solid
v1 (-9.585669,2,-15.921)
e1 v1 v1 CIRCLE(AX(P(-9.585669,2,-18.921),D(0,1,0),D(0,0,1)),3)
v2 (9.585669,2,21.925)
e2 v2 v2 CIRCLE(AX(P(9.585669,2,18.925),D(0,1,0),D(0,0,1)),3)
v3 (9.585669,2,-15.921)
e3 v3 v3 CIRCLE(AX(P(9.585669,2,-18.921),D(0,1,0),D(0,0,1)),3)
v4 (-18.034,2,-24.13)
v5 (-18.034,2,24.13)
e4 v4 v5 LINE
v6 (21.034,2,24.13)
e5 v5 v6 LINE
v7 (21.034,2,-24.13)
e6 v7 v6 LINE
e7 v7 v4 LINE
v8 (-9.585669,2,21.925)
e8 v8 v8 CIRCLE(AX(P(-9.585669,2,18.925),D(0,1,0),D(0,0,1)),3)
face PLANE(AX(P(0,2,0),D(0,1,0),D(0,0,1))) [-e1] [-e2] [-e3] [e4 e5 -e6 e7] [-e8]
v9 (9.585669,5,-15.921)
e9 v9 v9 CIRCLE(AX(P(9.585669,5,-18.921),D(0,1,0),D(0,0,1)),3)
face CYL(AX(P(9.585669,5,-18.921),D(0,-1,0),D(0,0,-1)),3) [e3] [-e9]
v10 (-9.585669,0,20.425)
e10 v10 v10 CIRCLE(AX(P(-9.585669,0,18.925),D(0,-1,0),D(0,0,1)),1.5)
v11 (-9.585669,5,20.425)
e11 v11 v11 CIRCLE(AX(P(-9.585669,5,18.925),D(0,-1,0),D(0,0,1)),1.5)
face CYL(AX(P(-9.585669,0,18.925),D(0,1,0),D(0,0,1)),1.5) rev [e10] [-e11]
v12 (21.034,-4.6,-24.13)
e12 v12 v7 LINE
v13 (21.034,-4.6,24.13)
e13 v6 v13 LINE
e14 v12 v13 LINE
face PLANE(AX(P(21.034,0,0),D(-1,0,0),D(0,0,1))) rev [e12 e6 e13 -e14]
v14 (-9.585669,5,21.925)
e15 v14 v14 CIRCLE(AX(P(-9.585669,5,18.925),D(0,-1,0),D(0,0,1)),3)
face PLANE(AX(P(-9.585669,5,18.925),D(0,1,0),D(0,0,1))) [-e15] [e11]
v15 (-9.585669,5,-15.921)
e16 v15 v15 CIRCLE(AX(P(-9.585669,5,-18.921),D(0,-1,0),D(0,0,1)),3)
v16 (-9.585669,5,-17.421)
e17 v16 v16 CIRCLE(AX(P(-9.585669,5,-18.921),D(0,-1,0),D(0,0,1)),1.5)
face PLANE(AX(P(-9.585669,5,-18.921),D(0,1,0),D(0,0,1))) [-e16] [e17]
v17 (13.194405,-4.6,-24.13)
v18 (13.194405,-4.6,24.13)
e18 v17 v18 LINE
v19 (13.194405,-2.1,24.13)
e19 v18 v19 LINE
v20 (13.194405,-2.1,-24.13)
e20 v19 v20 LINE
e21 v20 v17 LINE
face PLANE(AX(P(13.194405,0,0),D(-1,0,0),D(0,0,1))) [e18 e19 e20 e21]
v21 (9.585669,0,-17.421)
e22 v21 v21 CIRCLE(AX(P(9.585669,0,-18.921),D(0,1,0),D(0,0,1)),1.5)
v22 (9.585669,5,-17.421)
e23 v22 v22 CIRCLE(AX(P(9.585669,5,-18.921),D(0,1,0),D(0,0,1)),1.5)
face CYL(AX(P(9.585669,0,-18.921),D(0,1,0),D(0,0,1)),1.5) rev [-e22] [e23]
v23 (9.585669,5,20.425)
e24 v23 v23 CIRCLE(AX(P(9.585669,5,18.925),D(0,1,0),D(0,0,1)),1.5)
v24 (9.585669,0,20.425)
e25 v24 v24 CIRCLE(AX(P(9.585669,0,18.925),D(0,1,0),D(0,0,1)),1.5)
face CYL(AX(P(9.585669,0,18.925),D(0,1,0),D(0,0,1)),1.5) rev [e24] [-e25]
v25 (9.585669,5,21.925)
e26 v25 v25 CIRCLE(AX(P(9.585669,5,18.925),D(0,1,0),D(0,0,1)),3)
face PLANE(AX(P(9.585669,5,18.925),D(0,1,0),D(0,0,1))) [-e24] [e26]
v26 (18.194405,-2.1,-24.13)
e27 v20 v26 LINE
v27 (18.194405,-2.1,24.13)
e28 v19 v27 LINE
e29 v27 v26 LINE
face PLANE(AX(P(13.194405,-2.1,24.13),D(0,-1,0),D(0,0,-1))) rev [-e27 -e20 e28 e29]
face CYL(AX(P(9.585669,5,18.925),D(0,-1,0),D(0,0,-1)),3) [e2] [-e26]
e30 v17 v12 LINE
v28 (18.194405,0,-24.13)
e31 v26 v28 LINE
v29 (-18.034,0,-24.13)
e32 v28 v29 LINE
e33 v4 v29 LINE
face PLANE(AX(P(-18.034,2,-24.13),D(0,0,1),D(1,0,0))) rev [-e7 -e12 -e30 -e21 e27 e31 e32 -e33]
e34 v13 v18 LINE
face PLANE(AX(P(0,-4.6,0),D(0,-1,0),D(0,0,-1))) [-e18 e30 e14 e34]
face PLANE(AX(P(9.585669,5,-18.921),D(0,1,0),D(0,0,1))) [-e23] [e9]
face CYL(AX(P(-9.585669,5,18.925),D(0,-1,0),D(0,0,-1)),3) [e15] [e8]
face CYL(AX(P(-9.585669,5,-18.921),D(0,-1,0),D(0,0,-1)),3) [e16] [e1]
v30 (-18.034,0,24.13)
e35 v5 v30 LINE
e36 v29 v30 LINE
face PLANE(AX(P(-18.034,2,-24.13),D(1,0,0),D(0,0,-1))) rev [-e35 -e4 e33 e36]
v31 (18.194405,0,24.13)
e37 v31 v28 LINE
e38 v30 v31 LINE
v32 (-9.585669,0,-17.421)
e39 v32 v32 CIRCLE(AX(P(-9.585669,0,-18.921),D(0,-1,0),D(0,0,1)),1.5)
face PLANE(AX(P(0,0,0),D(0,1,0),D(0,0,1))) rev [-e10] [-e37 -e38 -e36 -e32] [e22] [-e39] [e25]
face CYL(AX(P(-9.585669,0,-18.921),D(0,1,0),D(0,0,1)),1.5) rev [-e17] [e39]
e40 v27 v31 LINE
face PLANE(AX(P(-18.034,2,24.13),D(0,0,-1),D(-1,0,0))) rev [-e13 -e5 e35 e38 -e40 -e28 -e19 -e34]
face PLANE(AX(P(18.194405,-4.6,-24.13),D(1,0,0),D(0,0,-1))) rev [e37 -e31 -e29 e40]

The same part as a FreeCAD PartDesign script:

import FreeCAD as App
import Part
import Sketcher
Q = App.Units.Quantity

doc = App.newDocument("Part")
body = doc.addObject("PartDesign::Body", "Body")

# Sketch on XZ plane
sketch1 = body.newObject("Sketcher::SketchObject", "Sketch")
sketch1.AttachmentSupport = (doc.getObject("XZ_Plane"), [""])
sketch1.MapMode = "FlatFace"
sketch1.addGeometry(Part.LineSegment(App.Vector(-18, -24, 0), App.Vector(-18, 24, 0)), False)
sketch1.addGeometry(Part.LineSegment(App.Vector(-18, 24, 0), App.Vector(18, 24, 0)), False)
sketch1.addGeometry(Part.LineSegment(App.Vector(18, 24, 0), App.Vector(18, -24, 0)), False)
sketch1.addGeometry(Part.LineSegment(App.Vector(18, -24, 0), App.Vector(-18, -24, 0)), False)
sketch1.addConstraint(Sketcher.Constraint("Coincident", 0, 2, 1, 1))
sketch1.addConstraint(Sketcher.Constraint("Coincident", 1, 2, 2, 1))
sketch1.addConstraint(Sketcher.Constraint("Coincident", 2, 2, 3, 1))
sketch1.addConstraint(Sketcher.Constraint("Coincident", 3, 2, 0, 1))
sketch1.addConstraint(Sketcher.Constraint("Vertical", 0))
sketch1.addConstraint(Sketcher.Constraint("Horizontal", 1))
sketch1.addConstraint(Sketcher.Constraint("Vertical", 2))
sketch1.addConstraint(Sketcher.Constraint("Horizontal", 3))
sketch1.addConstraint(Sketcher.Constraint("Symmetric", 0, 2, 2, 2, -1, 1))
sketch1.addConstraint(Sketcher.Constraint("DistanceY", 0, 1, 0, 2, Q("48.26 mm")))
sketch1.addConstraint(Sketcher.Constraint("DistanceX", 1, 1, 1, 2, Q("36.068 mm")))
pad1 = body.newObject("PartDesign::Pad", "Pad")
pad1.Profile = sketch1
pad1.Length = 2
pad1.Reversed = True

# Sketch on XZ plane
sketch2 = body.newObject("Sketcher::SketchObject", "Sketch001")
sketch2.AttachmentSupport = (doc.getObject("XZ_Plane"), [""])
sketch2.MapMode = "FlatFace"
sketch2.AttachmentOffset = App.Placement(App.Vector(0, 0, -2), App.Rotation())
sketch2.addGeometry(Part.Circle(App.Vector(9.6, -18.9, 0), App.Vector(0, 0, 1), 3), False)
sketch2.addGeometry(Part.Circle(App.Vector(9.6, 18.9, 0), App.Vector(0, 0, 1), 3), False)
sketch2.addConstraint(Sketcher.Constraint("Equal", 0, 1))
sketch2.addConstraint(Sketcher.Constraint("Vertical", 0, 3, 1, 3))
sketch2.addConstraint(Sketcher.Constraint("Diameter", 0, Q("6 mm")))
sketch2.addConstraint(Sketcher.Constraint("DistanceY", 0, 3, -1, 1, Q("18.921 mm")))
sketch2.addConstraint(Sketcher.Constraint("DistanceY", -1, 1, 1, 3, Q("18.925 mm")))
sketch2.addConstraint(Sketcher.Constraint("DistanceX", -1, 1, 0, 3, Q("9.585669 mm")))
pad2 = body.newObject("PartDesign::Pad", "Pad001")
pad2.Profile = sketch2
pad2.Length = 3
pad2.Reversed = True

# Sketch on XZ plane
sketch3 = body.newObject("Sketcher::SketchObject", "Sketch002")
sketch3.AttachmentSupport = (doc.getObject("XZ_Plane"), [""])
sketch3.MapMode = "FlatFace"
sketch3.AttachmentOffset = App.Placement(App.Vector(0, 0, -5), App.Rotation())
sketch3.addGeometry(Part.Circle(App.Vector(9.6, -18.9, 0), App.Vector(0, 0, 1), 1.5), False)
sketch3.addGeometry(Part.Circle(App.Vector(9.6, 18.9, 0), App.Vector(0, 0, 1), 1.5), False)
sketch3.addConstraint(Sketcher.Constraint("Equal", 0, 1))
sketch3.addConstraint(Sketcher.Constraint("Vertical", 0, 3, 1, 3))
sketch3.addConstraint(Sketcher.Constraint("Diameter", 0, Q("3 mm")))
sketch3.addConstraint(Sketcher.Constraint("DistanceY", 0, 3, -1, 1, Q("18.921 mm")))
sketch3.addConstraint(Sketcher.Constraint("DistanceY", -1, 1, 1, 3, Q("18.925 mm")))
sketch3.addConstraint(Sketcher.Constraint("DistanceX", -1, 1, 0, 3, Q("9.585669 mm")))
pocket1 = body.newObject("PartDesign::Pocket", "Pocket")
pocket1.Profile = sketch3
pocket1.Type = "ThroughAll"
pocket1.Reversed = True
doc.recompute()

mirrored = body.newObject("PartDesign::Mirrored", "Mirrored")
mirrored.Originals = [pad2, pocket1]
mirrored.MirrorPlane = (doc.getObject("YZ_Plane"), [""])
body.Tip = mirrored

# Sketch on YZ plane
sketch4 = body.newObject("Sketcher::SketchObject", "Sketch003")
sketch4.AttachmentSupport = (doc.getObject("YZ_Plane"), [""])
sketch4.MapMode = "FlatFace"
sketch4.AttachmentOffset = App.Placement(App.Vector(0, 0, 18.034), App.Rotation())
sketch4.addGeometry(Part.LineSegment(App.Vector(2, 24.1, 0), App.Vector(0, 24.1, 0)), False)
sketch4.addGeometry(Part.LineSegment(App.Vector(0, 24.1, 0), App.Vector(0, -24.1, 0)), False)
sketch4.addGeometry(Part.LineSegment(App.Vector(0, -24.1, 0), App.Vector(2, -24.1, 0)), False)
sketch4.addGeometry(Part.LineSegment(App.Vector(2, -24.1, 0), App.Vector(2, 24.1, 0)), False)
sketch4.addConstraint(Sketcher.Constraint("Coincident", 0, 2, 1, 1))
sketch4.addConstraint(Sketcher.Constraint("Coincident", 1, 2, 2, 1))
sketch4.addConstraint(Sketcher.Constraint("Coincident", 2, 2, 3, 1))
sketch4.addConstraint(Sketcher.Constraint("Coincident", 3, 2, 0, 1))
sketch4.addConstraint(Sketcher.Constraint("Horizontal", 0))
sketch4.addConstraint(Sketcher.Constraint("Vertical", 1))
sketch4.addConstraint(Sketcher.Constraint("Horizontal", 2))
sketch4.addConstraint(Sketcher.Constraint("Vertical", 3))
sketch4.addConstraint(Sketcher.Constraint("Symmetric", 0, 2, 1, 2, -1, 1))
sketch4.addConstraint(Sketcher.Constraint("DistanceX", 0, 2, 0, 1, Q("2 mm")))
sketch4.addConstraint(Sketcher.Constraint("DistanceY", 1, 2, 1, 1, Q("48.26 mm")))
pad3 = body.newObject("PartDesign::Pad", "Pad002")
pad3.Profile = sketch4
pad3.Length = 3

# Sketch on XZ plane
sketch5 = body.newObject("Sketcher::SketchObject", "Sketch004")
sketch5.AttachmentSupport = (doc.getObject("XZ_Plane"), [""])
sketch5.MapMode = "FlatFace"
sketch5.addGeometry(Part.LineSegment(App.Vector(21, -24.1, 0), App.Vector(21, 24.1, 0)), False)
sketch5.addGeometry(Part.LineSegment(App.Vector(21, 24.1, 0), App.Vector(18.2, 24.1, 0)), False)
sketch5.addGeometry(Part.LineSegment(App.Vector(18.2, 24.1, 0), App.Vector(18.2, -24.1, 0)), False)
sketch5.addGeometry(Part.LineSegment(App.Vector(18.2, -24.1, 0), App.Vector(21, -24.1, 0)), False)
sketch5.addConstraint(Sketcher.Constraint("Coincident", 0, 2, 1, 1))
sketch5.addConstraint(Sketcher.Constraint("Coincident", 1, 2, 2, 1))
sketch5.addConstraint(Sketcher.Constraint("Coincident", 2, 2, 3, 1))
sketch5.addConstraint(Sketcher.Constraint("Coincident", 3, 2, 0, 1))
sketch5.addConstraint(Sketcher.Constraint("Vertical", 0))
sketch5.addConstraint(Sketcher.Constraint("Horizontal", 1))
sketch5.addConstraint(Sketcher.Constraint("Vertical", 2))
sketch5.addConstraint(Sketcher.Constraint("Horizontal", 3))
sketch5.addConstraint(Sketcher.Constraint("DistanceY", 0, 1, 0, 2, Q("48.26 mm")))
sketch5.addConstraint(Sketcher.Constraint("DistanceY", -1, 1, 0, 2, Q("24.13 mm")))
sketch5.addConstraint(Sketcher.Constraint("DistanceX", -1, 1, 0, 2, Q("21.034 mm")))
sketch5.addConstraint(Sketcher.Constraint("DistanceX", 1, 2, 1, 1, Q("2.839595 mm")))
pad4 = body.newObject("PartDesign::Pad", "Pad003")
pad4.Profile = sketch5
pad4.Length = 4.6

# Sketch on YZ plane
sketch6 = body.newObject("Sketcher::SketchObject", "Sketch005")
sketch6.AttachmentSupport = (doc.getObject("YZ_Plane"), [""])
sketch6.MapMode = "FlatFace"
sketch6.AttachmentOffset = App.Placement(App.Vector(0, 0, 18.194405), App.Rotation())
sketch6.addGeometry(Part.LineSegment(App.Vector(-2.1, -24.1, 0), App.Vector(-4.6, -24.1, 0)), False)
sketch6.addGeometry(Part.LineSegment(App.Vector(-4.6, -24.1, 0), App.Vector(-4.6, 24.1, 0)), False)
sketch6.addGeometry(Part.LineSegment(App.Vector(-4.6, 24.1, 0), App.Vector(-2.1, 24.1, 0)), False)
sketch6.addGeometry(Part.LineSegment(App.Vector(-2.1, 24.1, 0), App.Vector(-2.1, -24.1, 0)), False)
sketch6.addConstraint(Sketcher.Constraint("Coincident", 0, 2, 1, 1))
sketch6.addConstraint(Sketcher.Constraint("Coincident", 1, 2, 2, 1))
sketch6.addConstraint(Sketcher.Constraint("Coincident", 2, 2, 3, 1))
sketch6.addConstraint(Sketcher.Constraint("Coincident", 3, 2, 0, 1))
sketch6.addConstraint(Sketcher.Constraint("Horizontal", 0))
sketch6.addConstraint(Sketcher.Constraint("Vertical", 1))
sketch6.addConstraint(Sketcher.Constraint("Horizontal", 2))
sketch6.addConstraint(Sketcher.Constraint("Vertical", 3))
sketch6.addConstraint(Sketcher.Constraint("DistanceX", 0, 2, 0, 1, Q("2.5 mm")))
sketch6.addConstraint(Sketcher.Constraint("DistanceY", 1, 1, 1, 2, Q("48.26 mm")))
sketch6.addConstraint(Sketcher.Constraint("DistanceX", 0, 2, -1, 1, Q("4.6 mm")))
sketch6.addConstraint(Sketcher.Constraint("DistanceY", 0, 2, -1, 1, Q("24.13 mm")))
pad5 = body.newObject("PartDesign::Pad", "Pad004")
pad5.Profile = sketch6
pad5.Length = 5
pad5.Reversed = True

doc.recompute()
